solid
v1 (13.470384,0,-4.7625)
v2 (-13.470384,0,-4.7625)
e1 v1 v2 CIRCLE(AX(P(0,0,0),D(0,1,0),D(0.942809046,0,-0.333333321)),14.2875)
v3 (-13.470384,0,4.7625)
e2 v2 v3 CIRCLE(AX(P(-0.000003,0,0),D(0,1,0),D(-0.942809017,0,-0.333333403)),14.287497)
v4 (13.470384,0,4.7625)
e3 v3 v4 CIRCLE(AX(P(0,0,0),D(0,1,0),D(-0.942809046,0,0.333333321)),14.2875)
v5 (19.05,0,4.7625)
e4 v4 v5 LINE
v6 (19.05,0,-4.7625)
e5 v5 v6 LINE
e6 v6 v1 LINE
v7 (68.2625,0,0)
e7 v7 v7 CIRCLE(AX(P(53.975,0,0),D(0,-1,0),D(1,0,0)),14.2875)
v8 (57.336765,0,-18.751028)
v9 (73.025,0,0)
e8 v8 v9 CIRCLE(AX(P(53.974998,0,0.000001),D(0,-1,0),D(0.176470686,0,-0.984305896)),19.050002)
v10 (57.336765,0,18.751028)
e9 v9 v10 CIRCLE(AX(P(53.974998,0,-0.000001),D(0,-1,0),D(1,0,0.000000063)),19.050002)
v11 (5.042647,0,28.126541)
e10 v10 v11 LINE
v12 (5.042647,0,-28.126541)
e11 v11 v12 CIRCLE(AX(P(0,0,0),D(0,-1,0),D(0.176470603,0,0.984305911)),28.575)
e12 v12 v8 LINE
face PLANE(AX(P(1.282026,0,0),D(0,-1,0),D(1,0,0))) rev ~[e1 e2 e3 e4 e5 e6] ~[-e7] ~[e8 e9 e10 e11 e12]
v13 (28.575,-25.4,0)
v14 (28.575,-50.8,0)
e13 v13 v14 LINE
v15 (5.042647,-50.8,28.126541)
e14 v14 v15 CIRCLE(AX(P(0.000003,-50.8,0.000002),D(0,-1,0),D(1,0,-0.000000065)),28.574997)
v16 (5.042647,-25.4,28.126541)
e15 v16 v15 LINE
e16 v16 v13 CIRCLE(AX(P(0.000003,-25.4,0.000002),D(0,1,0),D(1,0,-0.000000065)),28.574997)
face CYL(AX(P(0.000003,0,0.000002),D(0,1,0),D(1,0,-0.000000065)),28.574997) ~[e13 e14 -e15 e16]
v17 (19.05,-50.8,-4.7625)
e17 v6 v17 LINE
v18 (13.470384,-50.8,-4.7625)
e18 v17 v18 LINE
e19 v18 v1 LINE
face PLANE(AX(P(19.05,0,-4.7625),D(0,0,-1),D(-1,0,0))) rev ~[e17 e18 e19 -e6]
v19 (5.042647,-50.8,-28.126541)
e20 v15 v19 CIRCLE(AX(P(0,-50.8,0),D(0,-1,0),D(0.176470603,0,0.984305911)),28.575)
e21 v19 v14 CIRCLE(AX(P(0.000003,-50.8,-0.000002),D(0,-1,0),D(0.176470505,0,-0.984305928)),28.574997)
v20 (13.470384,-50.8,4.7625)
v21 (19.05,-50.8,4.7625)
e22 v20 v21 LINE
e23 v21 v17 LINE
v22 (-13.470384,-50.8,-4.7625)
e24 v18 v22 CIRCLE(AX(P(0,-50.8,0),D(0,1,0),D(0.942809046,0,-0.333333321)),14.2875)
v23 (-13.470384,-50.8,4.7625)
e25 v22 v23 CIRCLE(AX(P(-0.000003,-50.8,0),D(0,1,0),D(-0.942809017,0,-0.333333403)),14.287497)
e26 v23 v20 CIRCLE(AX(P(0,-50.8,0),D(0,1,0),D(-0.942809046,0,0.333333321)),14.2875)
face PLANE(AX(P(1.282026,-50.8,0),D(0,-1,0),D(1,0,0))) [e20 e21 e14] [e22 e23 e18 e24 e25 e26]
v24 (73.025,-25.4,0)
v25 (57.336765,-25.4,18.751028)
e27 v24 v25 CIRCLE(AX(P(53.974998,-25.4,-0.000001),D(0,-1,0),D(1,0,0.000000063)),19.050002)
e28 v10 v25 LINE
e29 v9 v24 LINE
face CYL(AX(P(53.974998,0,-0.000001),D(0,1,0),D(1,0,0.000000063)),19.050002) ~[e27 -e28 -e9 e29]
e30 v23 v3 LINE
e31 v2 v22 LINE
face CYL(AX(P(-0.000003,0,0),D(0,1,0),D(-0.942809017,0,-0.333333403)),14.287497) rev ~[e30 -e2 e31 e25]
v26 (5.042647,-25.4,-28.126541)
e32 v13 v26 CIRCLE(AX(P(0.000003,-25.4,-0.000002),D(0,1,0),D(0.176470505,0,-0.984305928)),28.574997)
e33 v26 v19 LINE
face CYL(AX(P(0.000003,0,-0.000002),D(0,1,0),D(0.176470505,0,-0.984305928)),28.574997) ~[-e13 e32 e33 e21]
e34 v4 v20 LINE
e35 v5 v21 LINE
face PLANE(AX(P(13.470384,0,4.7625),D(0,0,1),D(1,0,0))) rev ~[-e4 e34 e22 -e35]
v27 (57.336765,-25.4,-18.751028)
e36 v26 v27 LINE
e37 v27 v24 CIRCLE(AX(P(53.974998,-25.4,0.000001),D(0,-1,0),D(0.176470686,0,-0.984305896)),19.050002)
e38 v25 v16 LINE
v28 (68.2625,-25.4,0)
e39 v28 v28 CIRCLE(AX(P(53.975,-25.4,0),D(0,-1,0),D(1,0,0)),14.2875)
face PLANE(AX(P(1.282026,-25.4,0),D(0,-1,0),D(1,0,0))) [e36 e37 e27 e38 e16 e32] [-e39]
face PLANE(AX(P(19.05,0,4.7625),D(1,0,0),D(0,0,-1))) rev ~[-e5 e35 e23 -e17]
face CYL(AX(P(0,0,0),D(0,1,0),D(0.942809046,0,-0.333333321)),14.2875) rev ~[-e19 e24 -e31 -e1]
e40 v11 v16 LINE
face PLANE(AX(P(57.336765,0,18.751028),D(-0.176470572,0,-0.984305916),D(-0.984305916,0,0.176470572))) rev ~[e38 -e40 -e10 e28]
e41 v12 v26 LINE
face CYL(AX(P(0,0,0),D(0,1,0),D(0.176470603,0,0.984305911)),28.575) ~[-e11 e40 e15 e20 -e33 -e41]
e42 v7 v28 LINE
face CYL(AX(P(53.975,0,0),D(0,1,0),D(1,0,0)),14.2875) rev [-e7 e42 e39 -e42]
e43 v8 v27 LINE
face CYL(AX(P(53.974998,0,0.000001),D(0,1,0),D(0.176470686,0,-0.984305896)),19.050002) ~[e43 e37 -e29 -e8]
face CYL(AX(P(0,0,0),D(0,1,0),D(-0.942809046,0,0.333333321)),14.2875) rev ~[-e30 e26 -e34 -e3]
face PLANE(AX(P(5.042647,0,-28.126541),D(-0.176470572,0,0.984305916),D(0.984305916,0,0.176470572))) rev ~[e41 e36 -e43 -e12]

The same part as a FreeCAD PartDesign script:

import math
import FreeCAD as App
import Part
import Sketcher
from FreeCAD import Vector
Q = App.Units.Quantity

doc = App.newDocument("Part")
body = doc.addObject("PartDesign::Body", "Body")

sketch1 = body.newObject("Sketcher::SketchObject", "Sketch")
sketch1.AttachmentSupport = (doc.getObject("XZ_Plane"), [""])
sketch1.MapMode = "FlatFace"
sketch1.addGeometry([
    Part.ArcOfCircle(Part.Circle(Vector(0, 0, 0), Vector(0, 0, 1), 29), math.radians(80), math.radians(280)),
    Part.LineSegment(Vector(5, -28, 0), Vector(57, -19, 0)),
    Part.ArcOfCircle(Part.Circle(Vector(54, 0, 0), Vector(0, 0, 1), 19), math.radians(-80), math.radians(0)),
    Part.ArcOfCircle(Part.Circle(Vector(54, 0, 0), Vector(0, 0, 1), 19), math.radians(0), math.radians(80)),
    Part.LineSegment(Vector(57, 19, 0), Vector(5, 28, 0)),
    Part.LineSegment(Vector(-19, 5, 0), Vector(-13, 5, 0)),
    Part.ArcOfCircle(Part.Circle(Vector(0, 0, 0), Vector(0, 0, 1), 14), math.radians(19), math.radians(161)),
    Part.LineSegment(Vector(13, 5, 0), Vector(19, 5, 0)),
    Part.LineSegment(Vector(19, 5, 0), Vector(19, -5, 0)),
    Part.LineSegment(Vector(19, -5, 0), Vector(13, -5, 0)),
    Part.ArcOfCircle(Part.Circle(Vector(0, 0, 0), Vector(0, 0, 1), 14), math.radians(-161), math.radians(-19)),
    Part.LineSegment(Vector(-13, -5, 0), Vector(-19, -5, 0)),
    Part.LineSegment(Vector(-19, -5, 0), Vector(-19, 5, 0)),
    Part.Circle(Vector(54, 0, 0), Vector(0, 0, 1), 14),
], False)
sketch1.addConstraint([
    Sketcher.Constraint("Tangent", 0, 2, 1, 1),
    Sketcher.Constraint("Tangent", 1, 2, 2, 1),
    Sketcher.Constraint("Tangent", 2, 2, 3, 1),
    Sketcher.Constraint("Tangent", 3, 2, 4, 1),
    Sketcher.Constraint("Tangent", 4, 2, 0, 1),
    Sketcher.Constraint("Coincident", 5, 2, 6, 2),
    Sketcher.Constraint("Coincident", 6, 1, 7, 1),
    Sketcher.Constraint("Coincident", 7, 2, 8, 1),
    Sketcher.Constraint("Coincident", 8, 2, 9, 1),
    Sketcher.Constraint("Coincident", 9, 2, 10, 2),
    Sketcher.Constraint("Coincident", 10, 1, 11, 1),
    Sketcher.Constraint("Coincident", 11, 2, 12, 1),
    Sketcher.Constraint("Coincident", 12, 2, 5, 1),
    Sketcher.Constraint("Horizontal", 5),
    Sketcher.Constraint("Horizontal", 7),
    Sketcher.Constraint("Vertical", 8),
    Sketcher.Constraint("Horizontal", 9),
    Sketcher.Constraint("Horizontal", 11),
    Sketcher.Constraint("Vertical", 12),
    Sketcher.Constraint("Coincident", 0, 3, -1, 1),
    Sketcher.Constraint("Coincident", 6, 3, -1, 1),
    Sketcher.Constraint("Coincident", 10, 3, -1, 1),
    Sketcher.Constraint("Coincident", 13, 3, 2, 3),
    Sketcher.Constraint("Equal", 2, 3),
    Sketcher.Constraint("Equal", 6, 10),
    Sketcher.Constraint("Equal", 10, 13),
    Sketcher.Constraint("Symmetric", 7, 2, 11, 2, -1, 1),
    Sketcher.Constraint("PointOnObject", 2, 3, -1),
    Sketcher.Constraint("PointOnObject", 2, 2, -1),
    Sketcher.Constraint("Horizontal", 5, 2, 6, 1),
    Sketcher.Constraint("Horizontal", 9, 2, 10, 1),
    Sketcher.Constraint("Radius", 2, Q("0.7500001 in")),
    Sketcher.Constraint("Diameter", 13, Q("1.125 in")),
    Sketcher.Constraint("Radius", 0, Q("1.125 in")),
    Sketcher.Constraint("DistanceY", 8, 2, 8, 1, Q("0.375 in")),
    Sketcher.Constraint("DistanceX", -1, 1, 7, 2, Q("0.75 in")),
    Sketcher.Constraint("DistanceX", -1, 1, 2, 3, Q("2.1249999 in")),
])
pad1 = body.newObject("PartDesign::Pad", "Pad")
pad1.Profile = sketch1
pad1.Length = Q("1 in")

sketch2 = body.newObject("Sketcher::SketchObject", "Sketch001")
sketch2.AttachmentSupport = (doc.getObject("XZ_Plane"), [""])
sketch2.MapMode = "FlatFace"
sketch2.addGeometry([
    Part.ArcOfCircle(Part.Circle(Vector(0, 0, 0), Vector(0, 0, 1), 29), math.radians(-80), math.radians(0)),
    Part.ArcOfCircle(Part.Circle(Vector(0, 0, 0), Vector(0, 0, 1), 29), math.radians(0), math.radians(80)),
    Part.ArcOfCircle(Part.Circle(Vector(0, 0, 0), Vector(0, 0, 1), 29), math.radians(80), math.radians(280)),
    Part.ArcOfCircle(Part.Circle(Vector(0, 0, 0), Vector(0, 0, 1), 14), math.radians(-161), math.radians(-19)),
    Part.ArcOfCircle(Part.Circle(Vector(0, 0, 0), Vector(0, 0, 1), 14), math.radians(161), math.radians(199)),
    Part.ArcOfCircle(Part.Circle(Vector(0, 0, 0), Vector(0, 0, 1), 14), math.radians(19), math.radians(161)),
    Part.LineSegment(Vector(13, 5, 0), Vector(19, 5, 0)),
    Part.LineSegment(Vector(19, 5, 0), Vector(19, -5, 0)),
    Part.LineSegment(Vector(19, -5, 0), Vector(13, -5, 0)),
], False)
sketch2.addConstraint([
    Sketcher.Constraint("Tangent", 0, 2, 1, 1),
    Sketcher.Constraint("Tangent", 1, 2, 2, 1),
    Sketcher.Constraint("Tangent", 2, 2, 0, 1),
    Sketcher.Constraint("Tangent", 3, 1, 4, 2),
    Sketcher.Constraint("Tangent", 4, 1, 5, 2),
    Sketcher.Constraint("Coincident", 5, 1, 6, 1),
    Sketcher.Constraint("Coincident", 6, 2, 7, 1),
    Sketcher.Constraint("Coincident", 7, 2, 8, 1),
    Sketcher.Constraint("Coincident", 8, 2, 3, 2),
    Sketcher.Constraint("Horizontal", 6),
    Sketcher.Constraint("Vertical", 7),
    Sketcher.Constraint("Horizontal", 8),
    Sketcher.Constraint("Coincident", 0, 3, -1, 1),
    Sketcher.Constraint("Coincident", 3, 3, -1, 1),
    Sketcher.Constraint("Coincident", 5, 3, -1, 1),
    Sketcher.Constraint("PointOnObject", 0, 2, -1),
    Sketcher.Constraint("Horizontal", 4, 1, 5, 1),
    Sketcher.Constraint("Horizontal", 3, 1, 7, 2),
    Sketcher.Constraint("Vertical", 1, 2, 2, 2),
    Sketcher.Constraint("Vertical", 3, 1, 4, 1),
    Sketcher.Constraint("Radius", 0, Q("1.1249999 in")),
    Sketcher.Constraint("Radius", 3, Q("0.5625 in")),
    Sketcher.Constraint("DistanceY", 7, 2, 7, 1, Q("0.375 in")),
    Sketcher.Constraint("DistanceX", -1, 1, 6, 2, Q("0.75 in")),
    Sketcher.Constraint("DistanceY", -1, 1, 1, 2, Q("28.126541 mm")),
])
pad2 = body.newObject("PartDesign::Pad", "Pad001")
pad2.Profile = sketch2
pad2.Length = Q("2 in")

doc.recompute()
